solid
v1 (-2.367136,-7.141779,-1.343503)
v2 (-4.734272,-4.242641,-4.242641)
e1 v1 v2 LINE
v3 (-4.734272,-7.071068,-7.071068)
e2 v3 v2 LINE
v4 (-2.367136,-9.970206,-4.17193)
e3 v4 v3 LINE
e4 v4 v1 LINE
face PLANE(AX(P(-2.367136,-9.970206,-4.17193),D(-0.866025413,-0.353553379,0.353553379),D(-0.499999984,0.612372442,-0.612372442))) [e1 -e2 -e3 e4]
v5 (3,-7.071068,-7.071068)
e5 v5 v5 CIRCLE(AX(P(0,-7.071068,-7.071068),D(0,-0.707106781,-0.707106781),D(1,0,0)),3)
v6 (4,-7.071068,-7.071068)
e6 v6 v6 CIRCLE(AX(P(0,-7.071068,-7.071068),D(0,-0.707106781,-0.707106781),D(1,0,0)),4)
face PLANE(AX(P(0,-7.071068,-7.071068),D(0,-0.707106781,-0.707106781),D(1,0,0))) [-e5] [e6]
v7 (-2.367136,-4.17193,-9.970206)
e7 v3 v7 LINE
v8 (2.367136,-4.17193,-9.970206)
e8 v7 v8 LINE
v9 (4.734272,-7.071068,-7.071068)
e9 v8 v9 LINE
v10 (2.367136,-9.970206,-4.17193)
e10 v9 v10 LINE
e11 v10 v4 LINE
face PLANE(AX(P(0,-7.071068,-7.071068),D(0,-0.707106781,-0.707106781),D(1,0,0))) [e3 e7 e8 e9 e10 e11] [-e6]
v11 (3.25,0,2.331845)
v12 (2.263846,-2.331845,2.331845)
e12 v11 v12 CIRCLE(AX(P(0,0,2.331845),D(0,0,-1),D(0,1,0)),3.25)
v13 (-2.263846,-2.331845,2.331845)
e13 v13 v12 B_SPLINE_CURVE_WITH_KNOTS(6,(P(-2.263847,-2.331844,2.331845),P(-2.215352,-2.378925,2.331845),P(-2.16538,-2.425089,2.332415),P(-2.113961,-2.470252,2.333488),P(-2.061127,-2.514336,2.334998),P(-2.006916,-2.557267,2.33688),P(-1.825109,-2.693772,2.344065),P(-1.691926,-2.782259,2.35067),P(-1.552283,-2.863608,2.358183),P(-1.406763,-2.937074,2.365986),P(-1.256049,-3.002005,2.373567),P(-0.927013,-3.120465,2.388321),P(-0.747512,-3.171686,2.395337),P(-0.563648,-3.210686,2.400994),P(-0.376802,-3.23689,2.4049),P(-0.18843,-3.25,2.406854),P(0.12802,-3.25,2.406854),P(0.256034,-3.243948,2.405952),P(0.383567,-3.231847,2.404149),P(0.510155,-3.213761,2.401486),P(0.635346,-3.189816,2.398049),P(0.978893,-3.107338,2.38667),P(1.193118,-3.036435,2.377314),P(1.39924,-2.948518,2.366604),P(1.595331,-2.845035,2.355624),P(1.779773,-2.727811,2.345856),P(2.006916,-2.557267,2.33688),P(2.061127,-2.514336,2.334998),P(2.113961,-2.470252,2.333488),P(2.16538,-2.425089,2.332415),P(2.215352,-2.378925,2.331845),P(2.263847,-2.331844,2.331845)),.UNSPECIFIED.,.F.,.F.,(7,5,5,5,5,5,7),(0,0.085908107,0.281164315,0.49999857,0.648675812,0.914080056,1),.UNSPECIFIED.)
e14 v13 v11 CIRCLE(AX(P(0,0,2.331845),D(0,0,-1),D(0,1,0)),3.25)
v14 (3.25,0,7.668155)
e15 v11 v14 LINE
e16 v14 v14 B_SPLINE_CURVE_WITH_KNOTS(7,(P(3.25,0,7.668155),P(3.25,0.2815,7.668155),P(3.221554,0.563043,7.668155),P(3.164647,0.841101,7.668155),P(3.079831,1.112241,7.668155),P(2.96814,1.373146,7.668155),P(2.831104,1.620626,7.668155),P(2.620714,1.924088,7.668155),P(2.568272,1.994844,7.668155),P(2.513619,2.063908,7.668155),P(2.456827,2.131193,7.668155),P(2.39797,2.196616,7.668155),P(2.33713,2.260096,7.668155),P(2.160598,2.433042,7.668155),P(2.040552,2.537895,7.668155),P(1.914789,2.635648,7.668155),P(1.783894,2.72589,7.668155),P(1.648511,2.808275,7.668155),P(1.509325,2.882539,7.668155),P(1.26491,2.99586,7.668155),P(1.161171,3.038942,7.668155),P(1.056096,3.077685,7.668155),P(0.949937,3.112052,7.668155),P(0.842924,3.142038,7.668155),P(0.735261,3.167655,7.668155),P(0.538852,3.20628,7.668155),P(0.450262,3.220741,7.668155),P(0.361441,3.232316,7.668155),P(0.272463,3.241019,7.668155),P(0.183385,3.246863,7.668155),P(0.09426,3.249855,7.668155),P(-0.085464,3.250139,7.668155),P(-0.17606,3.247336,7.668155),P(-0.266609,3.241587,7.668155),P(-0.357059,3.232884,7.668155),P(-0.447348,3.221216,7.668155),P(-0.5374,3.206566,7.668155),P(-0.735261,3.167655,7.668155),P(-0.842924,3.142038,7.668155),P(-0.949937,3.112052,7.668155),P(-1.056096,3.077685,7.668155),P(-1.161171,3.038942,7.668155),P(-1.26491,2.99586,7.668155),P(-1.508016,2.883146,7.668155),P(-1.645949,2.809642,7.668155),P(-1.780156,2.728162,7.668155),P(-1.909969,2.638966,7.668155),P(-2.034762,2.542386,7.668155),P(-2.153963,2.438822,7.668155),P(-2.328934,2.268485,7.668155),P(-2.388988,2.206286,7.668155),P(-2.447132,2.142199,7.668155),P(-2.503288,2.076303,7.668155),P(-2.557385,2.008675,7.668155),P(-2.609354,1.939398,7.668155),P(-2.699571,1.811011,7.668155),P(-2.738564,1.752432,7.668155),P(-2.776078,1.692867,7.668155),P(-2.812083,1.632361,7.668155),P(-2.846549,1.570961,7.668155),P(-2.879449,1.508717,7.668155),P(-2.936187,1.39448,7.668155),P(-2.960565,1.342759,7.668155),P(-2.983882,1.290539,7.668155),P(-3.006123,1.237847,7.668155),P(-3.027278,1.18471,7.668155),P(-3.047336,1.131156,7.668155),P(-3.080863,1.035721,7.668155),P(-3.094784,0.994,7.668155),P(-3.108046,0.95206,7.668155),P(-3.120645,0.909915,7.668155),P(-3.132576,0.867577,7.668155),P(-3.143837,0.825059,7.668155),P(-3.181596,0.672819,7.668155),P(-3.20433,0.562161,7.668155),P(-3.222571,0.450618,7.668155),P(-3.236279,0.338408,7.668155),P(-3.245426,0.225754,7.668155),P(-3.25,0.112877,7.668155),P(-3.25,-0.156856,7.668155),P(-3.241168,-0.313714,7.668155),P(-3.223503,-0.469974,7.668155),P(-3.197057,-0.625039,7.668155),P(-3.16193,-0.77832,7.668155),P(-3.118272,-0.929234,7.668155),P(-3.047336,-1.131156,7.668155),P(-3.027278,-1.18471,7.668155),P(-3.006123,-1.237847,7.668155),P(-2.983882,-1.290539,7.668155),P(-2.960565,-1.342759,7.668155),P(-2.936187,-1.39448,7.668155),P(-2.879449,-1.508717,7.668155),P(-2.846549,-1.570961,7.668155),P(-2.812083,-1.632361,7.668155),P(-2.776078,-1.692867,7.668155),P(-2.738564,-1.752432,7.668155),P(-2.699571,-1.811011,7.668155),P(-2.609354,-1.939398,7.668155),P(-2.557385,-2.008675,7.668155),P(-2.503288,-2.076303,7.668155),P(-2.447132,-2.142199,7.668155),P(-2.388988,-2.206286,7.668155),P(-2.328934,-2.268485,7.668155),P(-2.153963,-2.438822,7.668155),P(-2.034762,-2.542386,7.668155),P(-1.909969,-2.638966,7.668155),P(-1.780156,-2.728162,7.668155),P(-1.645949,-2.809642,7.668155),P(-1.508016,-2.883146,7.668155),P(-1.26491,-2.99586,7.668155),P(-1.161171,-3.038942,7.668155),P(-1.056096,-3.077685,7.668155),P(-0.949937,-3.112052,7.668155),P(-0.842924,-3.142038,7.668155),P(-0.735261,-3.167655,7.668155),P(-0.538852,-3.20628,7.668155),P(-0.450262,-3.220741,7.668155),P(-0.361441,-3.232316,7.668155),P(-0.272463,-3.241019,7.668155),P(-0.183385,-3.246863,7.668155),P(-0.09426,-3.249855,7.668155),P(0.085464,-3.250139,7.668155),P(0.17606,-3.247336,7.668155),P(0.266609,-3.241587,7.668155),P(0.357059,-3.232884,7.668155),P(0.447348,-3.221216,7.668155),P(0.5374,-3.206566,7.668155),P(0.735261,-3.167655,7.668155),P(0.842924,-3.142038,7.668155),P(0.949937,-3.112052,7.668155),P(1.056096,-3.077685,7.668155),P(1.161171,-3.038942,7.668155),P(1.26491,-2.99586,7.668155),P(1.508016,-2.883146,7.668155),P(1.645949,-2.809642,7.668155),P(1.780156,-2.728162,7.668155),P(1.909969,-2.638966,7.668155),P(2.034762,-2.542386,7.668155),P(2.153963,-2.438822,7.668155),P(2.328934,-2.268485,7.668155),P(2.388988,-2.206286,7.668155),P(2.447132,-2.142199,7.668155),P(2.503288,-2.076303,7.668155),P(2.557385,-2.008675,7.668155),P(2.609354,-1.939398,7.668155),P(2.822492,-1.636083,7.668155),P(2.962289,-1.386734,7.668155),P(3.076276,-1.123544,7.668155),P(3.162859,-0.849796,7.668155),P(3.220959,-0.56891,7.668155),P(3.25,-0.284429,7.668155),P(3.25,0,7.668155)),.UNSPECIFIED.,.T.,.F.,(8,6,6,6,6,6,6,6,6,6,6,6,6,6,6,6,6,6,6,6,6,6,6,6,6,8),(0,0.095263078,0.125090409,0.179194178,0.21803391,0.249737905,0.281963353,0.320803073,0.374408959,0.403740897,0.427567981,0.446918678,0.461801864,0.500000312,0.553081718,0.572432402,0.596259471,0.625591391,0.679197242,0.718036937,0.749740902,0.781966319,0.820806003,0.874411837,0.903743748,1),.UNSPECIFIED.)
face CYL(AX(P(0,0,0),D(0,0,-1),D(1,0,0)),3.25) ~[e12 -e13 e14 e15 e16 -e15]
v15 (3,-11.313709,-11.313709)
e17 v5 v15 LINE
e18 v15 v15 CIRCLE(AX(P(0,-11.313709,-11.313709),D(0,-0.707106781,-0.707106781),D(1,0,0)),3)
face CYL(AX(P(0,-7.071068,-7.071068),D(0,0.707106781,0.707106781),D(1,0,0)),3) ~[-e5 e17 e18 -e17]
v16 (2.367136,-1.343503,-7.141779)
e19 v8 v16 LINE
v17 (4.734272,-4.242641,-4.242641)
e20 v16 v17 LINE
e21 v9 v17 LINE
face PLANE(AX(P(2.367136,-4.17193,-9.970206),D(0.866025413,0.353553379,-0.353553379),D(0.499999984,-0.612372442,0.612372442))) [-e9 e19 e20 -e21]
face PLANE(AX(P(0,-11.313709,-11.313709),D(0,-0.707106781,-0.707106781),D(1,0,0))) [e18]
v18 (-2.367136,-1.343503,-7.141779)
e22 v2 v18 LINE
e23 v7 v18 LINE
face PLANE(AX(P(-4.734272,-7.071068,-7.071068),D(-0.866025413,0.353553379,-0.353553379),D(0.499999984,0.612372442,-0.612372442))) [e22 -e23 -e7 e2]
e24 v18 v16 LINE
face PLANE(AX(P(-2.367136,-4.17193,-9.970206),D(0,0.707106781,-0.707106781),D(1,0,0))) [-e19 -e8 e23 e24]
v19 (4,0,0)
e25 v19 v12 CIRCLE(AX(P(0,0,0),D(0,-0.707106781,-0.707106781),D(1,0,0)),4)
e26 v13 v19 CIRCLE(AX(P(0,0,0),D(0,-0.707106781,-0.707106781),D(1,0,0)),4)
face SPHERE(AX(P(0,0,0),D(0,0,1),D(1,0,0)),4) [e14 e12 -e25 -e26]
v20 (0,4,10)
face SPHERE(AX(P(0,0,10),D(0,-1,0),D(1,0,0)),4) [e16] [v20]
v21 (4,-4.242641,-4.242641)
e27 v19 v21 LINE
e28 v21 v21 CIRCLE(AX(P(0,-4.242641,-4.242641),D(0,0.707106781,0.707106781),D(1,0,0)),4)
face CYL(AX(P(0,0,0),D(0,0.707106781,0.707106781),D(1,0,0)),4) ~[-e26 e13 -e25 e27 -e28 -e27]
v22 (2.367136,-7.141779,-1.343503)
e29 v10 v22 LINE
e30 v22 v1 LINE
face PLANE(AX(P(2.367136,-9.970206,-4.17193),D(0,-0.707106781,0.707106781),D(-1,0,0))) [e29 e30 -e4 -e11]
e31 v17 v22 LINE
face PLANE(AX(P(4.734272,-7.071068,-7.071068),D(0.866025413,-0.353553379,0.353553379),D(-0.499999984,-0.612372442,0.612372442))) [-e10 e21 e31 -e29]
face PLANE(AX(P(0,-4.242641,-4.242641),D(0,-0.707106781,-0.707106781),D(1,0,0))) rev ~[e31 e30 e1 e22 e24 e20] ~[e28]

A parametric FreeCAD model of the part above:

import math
import FreeCAD as App
import Part
import Sketcher
from FreeCAD import Vector
Q = App.Units.Quantity

doc = App.newDocument("Part")
body = doc.addObject("PartDesign::Body", "Body")

# Sketch on XY plane
sketch1 = body.newObject("Sketcher::SketchObject", "Sketch")
sketch1.AttachmentSupport = (doc.getObject("XY_Plane"), [""])
sketch1.MapMode = "FlatFace"
sketch1.addGeometry(Part.Circle(Vector(0, 0, 0), Vector(0, 0, 1), 3.2), False)
sketch1.addConstraint(Sketcher.Constraint("Coincident", 0, 3, -1, 1))
sketch1.addConstraint(Sketcher.Constraint("Diameter", 0, Q("6.5 mm")))
pad1 = body.newObject("PartDesign::Pad", "Pad")
pad1.Profile = sketch1
pad1.Length = 10

# Sketch on an angled plane
sketch2 = body.newObject("Sketcher::SketchObject", "Sketch001")
sketch2.Placement = App.Placement(Vector(0, 0, 0), App.Rotation(Vector(1, 0, 0), Vector(0, -0.707106781, 0.707106781), Vector(0, -0.707106781, -0.707106781), "ZXY"))
sketch2.addGeometry(Part.Circle(Vector(0, 0, 0), Vector(0, 0, 1), 4), False)
sketch2.addConstraint(Sketcher.Constraint("Coincident", 0, 3, -1, 1))
sketch2.addConstraint(Sketcher.Constraint("Diameter", 0, Q("8 mm")))
pad2 = body.newObject("PartDesign::Pad", "Pad001")
pad2.Profile = sketch2
pad2.Length = 10

# Sketch on XZ plane
sketch3 = body.newObject("Sketcher::SketchObject", "Sketch002")
sketch3.AttachmentSupport = (doc.getObject("XZ_Plane"), [""])
sketch3.MapMode = "FlatFace"
sketch3.addGeometry(Part.ArcOfCircle(Part.Circle(Vector(0, 0, 0), Vector(0, 0, 1), 4), math.radians(-90), math.radians(90)), False)
sketch3.addGeometry(Part.LineSegment(Vector(0, 4, 0), Vector(0, -4, 0)), False)
sketch3.addConstraint(Sketcher.Constraint("Coincident", 0, 1, 1, 2))
sketch3.addConstraint(Sketcher.Constraint("Coincident", 1, 1, 0, 2))
sketch3.addConstraint(Sketcher.Constraint("Vertical", 1))
sketch3.addConstraint(Sketcher.Constraint("Coincident", 0, 3, -1, 1))
sketch3.addConstraint(Sketcher.Constraint("PointOnObject", 0, 1, -2))
sketch3.addConstraint(Sketcher.Constraint("Radius", 0, Q("4 mm")))
revolution = body.newObject("PartDesign::Revolution", "Revolution")
revolution.Profile = sketch3
revolution.ReferenceAxis = (sketch3, ["V_Axis"])
revolution.Angle = 360

# Sketch on XY plane
sketch4 = body.newObject("Sketcher::SketchObject", "Sketch003")
sketch4.AttachmentSupport = (doc.getObject("XY_Plane"), [""])
sketch4.MapMode = "FlatFace"
sketch4.AttachmentOffset = App.Placement(Vector(0, 0, 10), App.Rotation())
sketch4.addGeometry(Part.ArcOfCircle(Part.Circle(Vector(0, 0, 0), Vector(0, 0, 1), 4), math.radians(-90), math.radians(90)), False)
sketch4.addGeometry(Part.LineSegment(Vector(0, -4, 0), Vector(0, 4, 0)), False)
sketch4.addConstraint(Sketcher.Constraint("Coincident", 0, 1, 1, 1))
sketch4.addConstraint(Sketcher.Constraint("Coincident", 1, 2, 0, 2))
sketch4.addConstraint(Sketcher.Constraint("Vertical", 1))
sketch4.addConstraint(Sketcher.Constraint("Coincident", 0, 3, -1, 1))
sketch4.addConstraint(Sketcher.Constraint("PointOnObject", 0, 1, -2))
sketch4.addConstraint(Sketcher.Constraint("Radius", 0, Q("4 mm")))
revolution2 = body.newObject("PartDesign::Revolution", "Revolution001")
revolution2.Profile = sketch4
revolution2.ReferenceAxis = (sketch4, ["V_Axis"])
revolution2.Angle = 360

# Sketch on an angled plane
sketch5 = body.newObject("Sketcher::SketchObject", "Sketch004")
sketch5.Placement = App.Placement(Vector(0, -12.071068, -2.071068), App.Rotation(Vector(1, 0, 0), Vector(0, -0.707106781, 0.707106781), Vector(0, -0.707106781, -0.707106781), "ZXY"))
sketch5.addGeometry(Part.Circle(Vector(0, -7.1, 0), Vector(0, 0, 1), 3), False)
sketch5.addConstraint(Sketcher.Constraint("PointOnObject", 0, 3, -2))
sketch5.addConstraint(Sketcher.Constraint("Diameter", 0, Q("6 mm")))
sketch5.addConstraint(Sketcher.Constraint("DistanceY", 0, 3, -1, 1, Q("7.071068 mm")))
pad3 = body.newObject("PartDesign::Pad", "Pad002")
pad3.Profile = sketch5
pad3.Length = 6

# Sketch on an angled plane
sketch6 = body.newObject("Sketcher::SketchObject", "Sketch005")
sketch6.Placement = App.Placement(Vector(0, -12.071068, -2.071068), App.Rotation(Vector(1, 0, 0), Vector(0, -0.707106781, 0.707106781), Vector(0, -0.707106781, -0.707106781), "ZXY"))
sketch6.addGeometry(Part.LineSegment(Vector(2.4, -3, 0), Vector(-2.4, -3, 0)), False)
sketch6.addGeometry(Part.LineSegment(Vector(-2.4, -3, 0), Vector(-4.7, -7.1, 0)), False)
sketch6.addGeometry(Part.LineSegment(Vector(-4.7, -7.1, 0), Vector(-2.4, -11.2, 0)), False)
sketch6.addGeometry(Part.LineSegment(Vector(-2.4, -11.2, 0), Vector(2.4, -11.2, 0)), False)
sketch6.addGeometry(Part.LineSegment(Vector(2.4, -11.2, 0), Vector(4.7, -7.1, 0)), False)
sketch6.addGeometry(Part.LineSegment(Vector(4.7, -7.1, 0), Vector(2.4, -3, 0)), False)
sketch6.addConstraint(Sketcher.Constraint("Coincident", 0, 2, 1, 1))
sketch6.addConstraint(Sketcher.Constraint("Coincident", 1, 2, 2, 1))
sketch6.addConstraint(Sketcher.Constraint("Coincident", 2, 2, 3, 1))
sketch6.addConstraint(Sketcher.Constraint("Coincident", 3, 2, 4, 1))
sketch6.addConstraint(Sketcher.Constraint("Coincident", 4, 2, 5, 1))
sketch6.addConstraint(Sketcher.Constraint("Coincident", 5, 2, 0, 1))
sketch6.addConstraint(Sketcher.Constraint("Horizontal", 0))
sketch6.addConstraint(Sketcher.Constraint("Horizontal", 3))
sketch6.addConstraint(Sketcher.Constraint("Symmetric", 1, 2, 4, 2, -2))
sketch6.addConstraint(Sketcher.Constraint("Parallel", 1, 4))
sketch6.addConstraint(Sketcher.Constraint("Parallel", 2, 5))
sketch6.addConstraint(Sketcher.Constraint("Vertical", 0, 2, 2, 2))
sketch6.addConstraint(Sketcher.Constraint("Vertical", 3, 2, 5, 2))
sketch6.addConstraint(Sketcher.Constraint("Angle", 1, Q("-119.999999 deg")))
sketch6.addConstraint(Sketcher.Constraint("DistanceY", 1, 2, 0, 2, Q("4.1 mm")))
sketch6.addConstraint(Sketcher.Constraint("DistanceX", 0, 2, 0, 1, Q("4.734272 mm")))
sketch6.addConstraint(Sketcher.Constraint("DistanceY", 0, 2, -1, 1, Q("2.971068 mm")))
pad4 = body.newObject("PartDesign::Pad", "Pad003")
pad4.Profile = sketch6
pad4.Length = 4
pad4.Reversed = True

doc.recompute()
